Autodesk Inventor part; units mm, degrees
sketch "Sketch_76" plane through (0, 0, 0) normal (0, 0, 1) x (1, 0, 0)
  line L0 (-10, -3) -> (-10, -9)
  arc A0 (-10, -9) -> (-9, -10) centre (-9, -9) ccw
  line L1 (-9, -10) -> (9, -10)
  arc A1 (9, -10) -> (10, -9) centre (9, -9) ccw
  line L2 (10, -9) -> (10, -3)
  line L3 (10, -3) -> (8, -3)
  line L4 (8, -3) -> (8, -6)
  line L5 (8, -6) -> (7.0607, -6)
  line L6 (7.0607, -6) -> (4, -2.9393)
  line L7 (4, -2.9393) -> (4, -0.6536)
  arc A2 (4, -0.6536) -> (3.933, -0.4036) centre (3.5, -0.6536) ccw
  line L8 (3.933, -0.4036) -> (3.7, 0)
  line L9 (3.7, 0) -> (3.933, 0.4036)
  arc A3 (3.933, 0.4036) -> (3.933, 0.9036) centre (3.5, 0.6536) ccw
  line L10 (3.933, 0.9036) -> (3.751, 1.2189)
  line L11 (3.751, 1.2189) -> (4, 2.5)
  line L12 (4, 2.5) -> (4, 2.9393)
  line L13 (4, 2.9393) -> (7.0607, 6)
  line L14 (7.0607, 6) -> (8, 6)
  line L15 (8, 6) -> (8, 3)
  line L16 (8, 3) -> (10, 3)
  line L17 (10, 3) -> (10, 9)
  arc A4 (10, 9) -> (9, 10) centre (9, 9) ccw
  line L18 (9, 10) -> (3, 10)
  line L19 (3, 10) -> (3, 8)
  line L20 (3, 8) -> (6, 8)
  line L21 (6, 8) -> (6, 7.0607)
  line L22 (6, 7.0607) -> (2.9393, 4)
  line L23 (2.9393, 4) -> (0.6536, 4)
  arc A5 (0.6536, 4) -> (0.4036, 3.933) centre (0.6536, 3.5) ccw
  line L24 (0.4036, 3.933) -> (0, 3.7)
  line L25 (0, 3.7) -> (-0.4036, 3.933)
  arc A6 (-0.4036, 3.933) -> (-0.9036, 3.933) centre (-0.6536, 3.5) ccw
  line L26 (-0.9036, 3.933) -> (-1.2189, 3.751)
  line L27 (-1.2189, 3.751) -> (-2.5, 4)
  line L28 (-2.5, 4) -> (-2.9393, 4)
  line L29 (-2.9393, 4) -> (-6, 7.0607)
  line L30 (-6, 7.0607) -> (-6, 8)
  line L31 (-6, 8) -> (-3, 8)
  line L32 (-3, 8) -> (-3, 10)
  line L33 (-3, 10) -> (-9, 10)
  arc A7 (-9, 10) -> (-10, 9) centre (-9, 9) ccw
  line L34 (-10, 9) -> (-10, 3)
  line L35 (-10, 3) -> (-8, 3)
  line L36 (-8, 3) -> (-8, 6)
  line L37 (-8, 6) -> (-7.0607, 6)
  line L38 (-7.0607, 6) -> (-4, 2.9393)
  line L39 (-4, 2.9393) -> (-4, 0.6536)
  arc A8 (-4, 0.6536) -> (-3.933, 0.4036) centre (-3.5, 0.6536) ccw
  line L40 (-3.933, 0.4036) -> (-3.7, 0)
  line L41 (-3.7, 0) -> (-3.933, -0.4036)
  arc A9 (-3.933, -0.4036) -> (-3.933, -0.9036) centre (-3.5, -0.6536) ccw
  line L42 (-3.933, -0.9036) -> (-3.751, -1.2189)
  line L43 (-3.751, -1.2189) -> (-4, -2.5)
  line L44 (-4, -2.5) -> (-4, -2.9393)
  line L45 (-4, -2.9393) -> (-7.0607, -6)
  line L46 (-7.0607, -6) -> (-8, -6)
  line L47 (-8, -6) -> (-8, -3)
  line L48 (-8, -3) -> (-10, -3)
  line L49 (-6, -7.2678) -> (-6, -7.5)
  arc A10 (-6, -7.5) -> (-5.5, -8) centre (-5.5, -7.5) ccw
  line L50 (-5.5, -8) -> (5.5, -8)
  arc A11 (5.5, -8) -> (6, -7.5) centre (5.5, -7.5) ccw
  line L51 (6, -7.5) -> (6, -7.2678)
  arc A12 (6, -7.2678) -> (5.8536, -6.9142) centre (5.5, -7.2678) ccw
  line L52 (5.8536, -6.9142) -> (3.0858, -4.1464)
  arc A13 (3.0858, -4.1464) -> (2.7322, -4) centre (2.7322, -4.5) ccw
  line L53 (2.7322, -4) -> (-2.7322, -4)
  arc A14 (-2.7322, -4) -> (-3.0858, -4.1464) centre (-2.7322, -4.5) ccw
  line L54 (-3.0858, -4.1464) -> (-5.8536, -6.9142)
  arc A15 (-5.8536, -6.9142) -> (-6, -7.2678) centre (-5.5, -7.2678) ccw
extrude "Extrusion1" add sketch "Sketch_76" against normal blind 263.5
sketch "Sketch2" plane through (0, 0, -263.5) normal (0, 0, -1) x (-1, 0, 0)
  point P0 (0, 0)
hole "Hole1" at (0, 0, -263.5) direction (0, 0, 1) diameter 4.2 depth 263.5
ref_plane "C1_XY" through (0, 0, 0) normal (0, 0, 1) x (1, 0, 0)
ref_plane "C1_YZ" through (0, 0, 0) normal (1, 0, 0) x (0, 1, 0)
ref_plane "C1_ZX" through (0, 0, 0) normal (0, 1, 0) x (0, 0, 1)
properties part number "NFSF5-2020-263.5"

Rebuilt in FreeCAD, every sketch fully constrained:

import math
import FreeCAD as App
import Part
import Sketcher
Q = App.Units.Quantity

doc = App.newDocument("Part")
body = doc.addObject("PartDesign::Body", "Body")

# Sketch on XY plane
sketch1 = doc.addObject("Sketcher::SketchObject", "Sketch")
body.addObject(sketch1)
sketch1.AttachmentSupport = (doc.XY_Plane, [""])
sketch1.MapMode = "FlatFace"
sketch1.addGeometry([
    Part.LineSegment(App.Vector(-8, -3, 0), App.Vector(-10, -3, 0)),  # 0
    Part.LineSegment(App.Vector(-10, -3, 0), App.Vector(-10, -9, 0)),  # 1
    Part.ArcOfCircle(Part.Circle(App.Vector(-9, -9, 0), App.Vector(0, 0, 1), 1), math.radians(180), math.radians(270)),  # 2
    Part.LineSegment(App.Vector(-9, -10, 0), App.Vector(9, -10, 0)),  # 3
    Part.ArcOfCircle(Part.Circle(App.Vector(9, -9, 0), App.Vector(0, 0, 1), 1), math.radians(-90), math.radians(0)),  # 4
    Part.LineSegment(App.Vector(10, -9, 0), App.Vector(10, -3, 0)),  # 5
    Part.LineSegment(App.Vector(10, -3, 0), App.Vector(8, -3, 0)),  # 6
    Part.LineSegment(App.Vector(8, -3, 0), App.Vector(8, -6, 0)),  # 7
    Part.LineSegment(App.Vector(8, -6, 0), App.Vector(7.06, -6, 0)),  # 8
    Part.LineSegment(App.Vector(7.06, -6, 0), App.Vector(4, -2.94, 0)),  # 9
    Part.LineSegment(App.Vector(4, -2.94, 0), App.Vector(4, -0.65, 0)),  # 10
    Part.ArcOfCircle(Part.Circle(App.Vector(3.5, -0.65, 0), App.Vector(0, 0, 1), 0.5), math.radians(0), math.radians(30)),  # 11
    Part.LineSegment(App.Vector(3.93, -0.4, 0), App.Vector(3.7, 0, 0)),  # 12
    Part.LineSegment(App.Vector(3.7, 0, 0), App.Vector(3.93, 0.4, 0)),  # 13
    Part.ArcOfCircle(Part.Circle(App.Vector(3.5, 0.65, 0), App.Vector(0, 0, 1), 0.5), math.radians(-30), math.radians(30)),  # 14
    Part.LineSegment(App.Vector(3.93, 0.9, 0), App.Vector(3.75, 1.22, 0)),  # 15
    Part.LineSegment(App.Vector(3.75, 1.22, 0), App.Vector(4, 2.5, 0)),  # 16
    Part.LineSegment(App.Vector(4, 2.5, 0), App.Vector(4, 2.94, 0)),  # 17
    Part.LineSegment(App.Vector(4, 2.94, 0), App.Vector(7.06, 6, 0)),  # 18
    Part.LineSegment(App.Vector(7.06, 6, 0), App.Vector(8, 6, 0)),  # 19
    Part.LineSegment(App.Vector(8, 6, 0), App.Vector(8, 3, 0)),  # 20
    Part.LineSegment(App.Vector(8, 3, 0), App.Vector(10, 3, 0)),  # 21
    Part.LineSegment(App.Vector(10, 3, 0), App.Vector(10, 9, 0)),  # 22
    Part.ArcOfCircle(Part.Circle(App.Vector(9, 9, 0), App.Vector(0, 0, 1), 1), math.radians(0), math.radians(90)),  # 23
    Part.LineSegment(App.Vector(9, 10, 0), App.Vector(3, 10, 0)),  # 24
    Part.LineSegment(App.Vector(3, 10, 0), App.Vector(3, 8, 0)),  # 25
    Part.LineSegment(App.Vector(3, 8, 0), App.Vector(6, 8, 0)),  # 26
    Part.LineSegment(App.Vector(6, 8, 0), App.Vector(6, 7.06, 0)),  # 27
    Part.LineSegment(App.Vector(6, 7.06, 0), App.Vector(2.94, 4, 0)),  # 28
    Part.LineSegment(App.Vector(2.94, 4, 0), App.Vector(0.65, 4, 0)),  # 29
    Part.ArcOfCircle(Part.Circle(App.Vector(0.65, 3.5, 0), App.Vector(0, 0, 1), 0.5), math.radians(90), math.radians(120)),  # 30
    Part.LineSegment(App.Vector(0.4, 3.93, 0), App.Vector(0, 3.7, 0)),  # 31
    Part.LineSegment(App.Vector(0, 3.7, 0), App.Vector(-0.4, 3.93, 0)),  # 32
    Part.ArcOfCircle(Part.Circle(App.Vector(-0.65, 3.5, 0), App.Vector(0, 0, 1), 0.5), math.radians(60), math.radians(120)),  # 33
    Part.LineSegment(App.Vector(-0.9, 3.93, 0), App.Vector(-1.22, 3.75, 0)),  # 34
    Part.LineSegment(App.Vector(-1.22, 3.75, 0), App.Vector(-2.5, 4, 0)),  # 35
    Part.LineSegment(App.Vector(-2.5, 4, 0), App.Vector(-2.94, 4, 0)),  # 36
    Part.LineSegment(App.Vector(-2.94, 4, 0), App.Vector(-6, 7.06, 0)),  # 37
    Part.LineSegment(App.Vector(-6, 7.06, 0), App.Vector(-6, 8, 0)),  # 38
    Part.LineSegment(App.Vector(-6, 8, 0), App.Vector(-3, 8, 0)),  # 39
    Part.LineSegment(App.Vector(-3, 8, 0), App.Vector(-3, 10, 0)),  # 40
    Part.LineSegment(App.Vector(-3, 10, 0), App.Vector(-9, 10, 0)),  # 41
    Part.ArcOfCircle(Part.Circle(App.Vector(-9, 9, 0), App.Vector(0, 0, 1), 1), math.radians(90), math.radians(180)),  # 42
    Part.LineSegment(App.Vector(-10, 9, 0), App.Vector(-10, 3, 0)),  # 43
    Part.LineSegment(App.Vector(-10, 3, 0), App.Vector(-8, 3, 0)),  # 44
    Part.LineSegment(App.Vector(-8, 3, 0), App.Vector(-8, 6, 0)),  # 45
    Part.LineSegment(App.Vector(-8, 6, 0), App.Vector(-7.06, 6, 0)),  # 46
    Part.LineSegment(App.Vector(-7.06, 6, 0), App.Vector(-4, 2.94, 0)),  # 47
    Part.LineSegment(App.Vector(-4, 2.94, 0), App.Vector(-4, 0.65, 0)),  # 48
    Part.ArcOfCircle(Part.Circle(App.Vector(-3.5, 0.65, 0), App.Vector(0, 0, 1), 0.5), math.radians(180), math.radians(210)),  # 49
    Part.LineSegment(App.Vector(-3.93, 0.4, 0), App.Vector(-3.7, 0, 0)),  # 50
    Part.LineSegment(App.Vector(-3.7, 0, 0), App.Vector(-3.93, -0.4, 0)),  # 51
    Part.ArcOfCircle(Part.Circle(App.Vector(-3.5, -0.65, 0), App.Vector(0, 0, 1), 0.5), math.radians(150), math.radians(210)),  # 52
    Part.LineSegment(App.Vector(-3.93, -0.9, 0), App.Vector(-3.75, -1.22, 0)),  # 53
    Part.LineSegment(App.Vector(-3.75, -1.22, 0), App.Vector(-4, -2.5, 0)),  # 54
    Part.LineSegment(App.Vector(-4, -2.5, 0), App.Vector(-4, -2.94, 0)),  # 55
    Part.LineSegment(App.Vector(-4, -2.94, 0), App.Vector(-7.06, -6, 0)),  # 56
    Part.LineSegment(App.Vector(-7.06, -6, 0), App.Vector(-8, -6, 0)),  # 57
    Part.LineSegment(App.Vector(-8, -6, 0), App.Vector(-8, -3, 0)),  # 58
    Part.LineSegment(App.Vector(-6, -7.5, 0), App.Vector(-6, -7.27, 0)),  # 59
    Part.ArcOfCircle(Part.Circle(App.Vector(-5.5, -7.27, 0), App.Vector(0, 0, 1), 0.5), math.radians(135), math.radians(180)),  # 60
    Part.LineSegment(App.Vector(-5.85, -6.91, 0), App.Vector(-3.09, -4.15, 0)),  # 61
    Part.ArcOfCircle(Part.Circle(App.Vector(-2.73, -4.5, 0), App.Vector(0, 0, 1), 0.5), math.radians(90), math.radians(135)),  # 62
    Part.LineSegment(App.Vector(-2.73, -4, 0), App.Vector(2.73, -4, 0)),  # 63
    Part.ArcOfCircle(Part.Circle(App.Vector(2.73, -4.5, 0), App.Vector(0, 0, 1), 0.5), math.radians(45), math.radians(90)),  # 64
    Part.LineSegment(App.Vector(3.09, -4.15, 0), App.Vector(5.85, -6.91, 0)),  # 65
    Part.ArcOfCircle(Part.Circle(App.Vector(5.5, -7.27, 0), App.Vector(0, 0, 1), 0.5), math.radians(0), math.radians(45)),  # 66
    Part.LineSegment(App.Vector(6, -7.27, 0), App.Vector(6, -7.5, 0)),  # 67
    Part.ArcOfCircle(Part.Circle(App.Vector(5.5, -7.5, 0), App.Vector(0, 0, 1), 0.5), math.radians(-90), math.radians(0)),  # 68
    Part.LineSegment(App.Vector(5.5, -8, 0), App.Vector(-5.5, -8, 0)),  # 69
    Part.ArcOfCircle(Part.Circle(App.Vector(-5.5, -7.5, 0), App.Vector(0, 0, 1), 0.5), math.radians(180), math.radians(270)),  # 70
], False)
sketch1.addConstraint([
    Sketcher.Constraint("Coincident", 0, 2, 1, 1),
    Sketcher.Constraint("Tangent", 1, 2, 2, 1),
    Sketcher.Constraint("Tangent", 2, 2, 3, 1),
    Sketcher.Constraint("Tangent", 3, 2, 4, 1),
    Sketcher.Constraint("Tangent", 4, 2, 5, 1),
    Sketcher.Constraint("Coincident", 5, 2, 6, 1),
    Sketcher.Constraint("Coincident", 6, 2, 7, 1),
    Sketcher.Constraint("Coincident", 7, 2, 8, 1),
    Sketcher.Constraint("Coincident", 8, 2, 9, 1),
    Sketcher.Constraint("Coincident", 9, 2, 10, 1),
    Sketcher.Constraint("Tangent", 10, 2, 11, 1),
    Sketcher.Constraint("Tangent", 11, 2, 12, 1),
    Sketcher.Constraint("Coincident", 12, 2, 13, 1),
    Sketcher.Constraint("Tangent", 13, 2, 14, 1),
    Sketcher.Constraint("Tangent", 14, 2, 15, 1),
    Sketcher.Constraint("Coincident", 15, 2, 16, 1),
    Sketcher.Constraint("Coincident", 16, 2, 17, 1),
    Sketcher.Constraint("Coincident", 17, 2, 18, 1),
    Sketcher.Constraint("Coincident", 18, 2, 19, 1),
    Sketcher.Constraint("Coincident", 19, 2, 20, 1),
    Sketcher.Constraint("Coincident", 20, 2, 21, 1),
    Sketcher.Constraint("Coincident", 21, 2, 22, 1),
    Sketcher.Constraint("Tangent", 22, 2, 23, 1),
    Sketcher.Constraint("Tangent", 23, 2, 24, 1),
    Sketcher.Constraint("Coincident", 24, 2, 25, 1),
    Sketcher.Constraint("Coincident", 25, 2, 26, 1),
    Sketcher.Constraint("Coincident", 26, 2, 27, 1),
    Sketcher.Constraint("Coincident", 27, 2, 28, 1),
    Sketcher.Constraint("Coincident", 28, 2, 29, 1),
    Sketcher.Constraint("Tangent", 29, 2, 30, 1),
    Sketcher.Constraint("Tangent", 30, 2, 31, 1),
    Sketcher.Constraint("Coincident", 31, 2, 32, 1),
    Sketcher.Constraint("Tangent", 32, 2, 33, 1),
    Sketcher.Constraint("Tangent", 33, 2, 34, 1),
    Sketcher.Constraint("Coincident", 34, 2, 35, 1),
    Sketcher.Constraint("Coincident", 35, 2, 36, 1),
    Sketcher.Constraint("Coincident", 36, 2, 37, 1),
    Sketcher.Constraint("Coincident", 37, 2, 38, 1),
    Sketcher.Constraint("Coincident", 38, 2, 39, 1),
    Sketcher.Constraint("Coincident", 39, 2, 40, 1),
    Sketcher.Constraint("Coincident", 40, 2, 41, 1),
    Sketcher.Constraint("Tangent", 41, 2, 42, 1),
    Sketcher.Constraint("Tangent", 42, 2, 43, 1),
    Sketcher.Constraint("Coincident", 43, 2, 44, 1),
    Sketcher.Constraint("Coincident", 44, 2, 45, 1),
    Sketcher.Constraint("Coincident", 45, 2, 46, 1),
    Sketcher.Constraint("Coincident", 46, 2, 47, 1),
    Sketcher.Constraint("Coincident", 47, 2, 48, 1),
    Sketcher.Constraint("Tangent", 48, 2, 49, 1),
    Sketcher.Constraint("Tangent", 49, 2, 50, 1),
    Sketcher.Constraint("Coincident", 50, 2, 51, 1),
    Sketcher.Constraint("Tangent", 51, 2, 52, 1),
    Sketcher.Constraint("Tangent", 52, 2, 53, 1),
    Sketcher.Constraint("Coincident", 53, 2, 54, 1),
    Sketcher.Constraint("Coincident", 54, 2, 55, 1),
    Sketcher.Constraint("Coincident", 55, 2, 56, 1),
    Sketcher.Constraint("Coincident", 56, 2, 57, 1),
    Sketcher.Constraint("Coincident", 57, 2, 58, 1),
    Sketcher.Constraint("Coincident", 58, 2, 0, 1),
    Sketcher.Constraint("Tangent", 59, 2, 60, 2),
    Sketcher.Constraint("Tangent", 60, 1, 61, 1),
    Sketcher.Constraint("Tangent", 61, 2, 62, 2),
    Sketcher.Constraint("Tangent", 62, 1, 63, 1),
    Sketcher.Constraint("Tangent", 63, 2, 64, 2),
    Sketcher.Constraint("Tangent", 64, 1, 65, 1),
    Sketcher.Constraint("Tangent", 65, 2, 66, 2),
    Sketcher.Constraint("Tangent", 66, 1, 67, 1),
    Sketcher.Constraint("Tangent", 67, 2, 68, 2),
    Sketcher.Constraint("Tangent", 68, 1, 69, 1),
    Sketcher.Constraint("Tangent", 69, 2, 70, 2),
    Sketcher.Constraint("Tangent", 70, 1, 59, 1),
    Sketcher.Constraint("Horizontal", 0),
    Sketcher.Constraint("Vertical", 1),
    Sketcher.Constraint("Horizontal", 3),
    Sketcher.Constraint("Vertical", 5),
    Sketcher.Constraint("Horizontal", 6),
    Sketcher.Constraint("Vertical", 7),
    Sketcher.Constraint("Horizontal", 8),
    Sketcher.Constraint("Vertical", 10),
    Sketcher.Constraint("Vertical", 17),
    Sketcher.Constraint("Horizontal", 19),
    Sketcher.Constraint("Vertical", 20),
    Sketcher.Constraint("Horizontal", 21),
    Sketcher.Constraint("Vertical", 22),
    Sketcher.Constraint("Horizontal", 24),
    Sketcher.Constraint("Vertical", 25),
    Sketcher.Constraint("Horizontal", 26),
    Sketcher.Constraint("Vertical", 27),
    Sketcher.Constraint("Horizontal", 29),
    Sketcher.Constraint("Horizontal", 36),
    Sketcher.Constraint("Vertical", 38),
    Sketcher.Constraint("Horizontal", 39),
    Sketcher.Constraint("Vertical", 40),
    Sketcher.Constraint("Horizontal", 41),
    Sketcher.Constraint("Vertical", 43),
    Sketcher.Constraint("Horizontal", 44),
    Sketcher.Constraint("Vertical", 45),
    Sketcher.Constraint("Horizontal", 46),
    Sketcher.Constraint("Vertical", 48),
    Sketcher.Constraint("Vertical", 55),
    Sketcher.Constraint("Horizontal", 57),
    Sketcher.Constraint("Vertical", 58),
    Sketcher.Constraint("Vertical", 59),
    Sketcher.Constraint("Horizontal", 63),
    Sketcher.Constraint("Vertical", 67),
    Sketcher.Constraint("Horizontal", 69),
    Sketcher.Constraint("Equal", 2, 4),
    Sketcher.Constraint("Equal", 11, 14),
    Sketcher.Constraint("Equal", 4, 23),
    Sketcher.Constraint("Equal", 14, 30),
    Sketcher.Constraint("Equal", 30, 33),
    Sketcher.Constraint("Equal", 23, 42),
    Sketcher.Constraint("Equal", 33, 49),
    Sketcher.Constraint("Equal", 49, 52),
    Sketcher.Constraint("Equal", 52, 60),
    Sketcher.Constraint("Equal", 60, 62),
    Sketcher.Constraint("Equal", 62, 64),
    Sketcher.Constraint("Equal", 64, 66),
    Sketcher.Constraint("Equal", 66, 68),
    Sketcher.Constraint("Equal", 68, 70),
    Sketcher.Constraint("Symmetric", 2, 3, 23, 3, -1, 1),
    Sketcher.Constraint("Symmetric", 4, 3, 42, 3, -1, 1),
    Sketcher.Constraint("Symmetric", 11, 3, 49, 3, -1, 1),
    Sketcher.Constraint("Symmetric", 14, 3, 52, 3, -1, 1),
    Sketcher.Constraint("Symmetric", 6, 2, 44, 2, -1, 1),
    Sketcher.Constraint("Symmetric", 8, 2, 46, 2, -1, 1),
    Sketcher.Constraint("Symmetric", 12, 2, 50, 2, -1, 1),
    Sketcher.Constraint("Symmetric", 15, 2, 53, 2, -1, 1),
    Sketcher.Constraint("Symmetric", 16, 2, 54, 2, -1, 1),
    Sketcher.Constraint("Symmetric", 18, 2, 56, 2, -1, 1),
    Sketcher.Constraint("Symmetric", 20, 2, 58, 2, -1, 1),
    Sketcher.Constraint("Symmetric", 30, 3, 33, 3, -2),
    Sketcher.Constraint("Symmetric", 14, 3, 49, 3, -2),
    Sketcher.Constraint("Symmetric", 60, 3, 66, 3, -2),
    Sketcher.Constraint("Symmetric", 0, 2, 5, 2, -2),
    Sketcher.Constraint("Symmetric", 28, 2, 36, 2, -2),
    Sketcher.Constraint("Symmetric", 27, 2, 37, 2, -2),
    Sketcher.Constraint("Symmetric", 25, 2, 39, 2, -2),
    Sketcher.Constraint("Symmetric", 19, 2, 45, 2, -2),
    Sketcher.Constraint("Symmetric", 17, 2, 47, 2, -2),
    Sketcher.Constraint("PointOnObject", 12, 2, -1),
    Sketcher.Constraint("PointOnObject", 31, 2, -2),
    Sketcher.Constraint("Parallel", 12, 15),
    Sketcher.Constraint("Perpendicular", 9, 18),
    Sketcher.Constraint("Parallel", 18, 28),
    Sketcher.Constraint("Perpendicular", 15, 31),
    Sketcher.Constraint("Parallel", 31, 34),
    Sketcher.Constraint("Perpendicular", 16, 35),
    Sketcher.Constraint("Perpendicular", 28, 37),
    Sketcher.Constraint("Parallel", 37, 47),
    Sketcher.Constraint("Perpendicular", 47, 56),
    Sketcher.Constraint("Parallel", 56, 61),
    Sketcher.Constraint("Perpendicular", 61, 65),
    Sketcher.Constraint("Vertical", 38, 2, 59, 2),
    Sketcher.Constraint("Equal", 41, 1),
    Sketcher.Constraint("Equal", 39, 7),
    Sketcher.Constraint("Equal", 29, 10),
    Sketcher.Constraint("Equal", 36, 17),
    Sketcher.Constraint("Equal", 44, 25),
    Sketcher.Constraint("Equal", 57, 27),
    Sketcher.Constraint("Equal", 18, 28),
    Sketcher.Constraint("Equal", 13, 31),
    Sketcher.Constraint("Radius", 2, 1.0),
    Sketcher.Constraint("Radius", 11, 0.5),
    Sketcher.Constraint("DistanceX", 0, 2, 0, 1, 2.0),
    Sketcher.Constraint("DistanceX", 3, 1, 3, 2, 18.0),
    Sketcher.Constraint("DistanceX", 24, 2, 24, 1, 6.0),
    Sketcher.Constraint("DistanceX", 26, 1, 26, 2, 3.0),
    Sketcher.Constraint("Angle", 16, Q("79.001 deg")),
    Sketcher.Constraint("DistanceX", -1, 1, 9, 2, 4.0),
    Sketcher.Constraint("DistanceY", 62, 1, -1, 1, 4.0),
    Sketcher.Constraint("DistanceY", 68, 1, -1, 1, 8.0),
    Sketcher.Constraint("DistanceX", -1, 1, 12, 2, 3.7),
    Sketcher.Constraint("DistanceY", -1, 1, 16, 2, 2.5),
    Sketcher.Constraint("Distance", 12, 0.466),
    Sketcher.Constraint("DistanceX", 8, 2, 8, 1, 0.9393),
    Sketcher.Constraint("DistanceX", 63, 1, 63, 2, 5.4644),
])
pad1 = doc.addObject("PartDesign::Pad", "Pad")
body.addObject(pad1)
pad1.Profile = sketch1
pad1.Length = 263.5
pad1.Reversed = True

# Sketch on XY plane
sketch2 = doc.addObject("Sketcher::SketchObject", "Sketch001")
body.addObject(sketch2)
sketch2.AttachmentSupport = (doc.XY_Plane, [""])
sketch2.MapMode = "FlatFace"
sketch2.AttachmentOffset = App.Placement(App.Vector(0, 0, -263.5), App.Rotation())
sketch2.addGeometry(Part.Circle(App.Vector(0, 0, 0), App.Vector(0, 0, 1), 2.1), False)
sketch2.addConstraint([
    Sketcher.Constraint("Coincident", 0, 3, -1, 1),
    Sketcher.Constraint("Diameter", 0, 4.2),
])
doc.recompute()
hole = doc.addObject("PartDesign::Hole", "Hole")
body.addObject(hole)
hole.Profile = sketch2
hole.ThreadType = "None"
hole.Diameter = 4.2
hole.DepthType = "Dimension"
hole.Depth = 263.5
hole.DrillPoint = "Flat"
hole.Reversed = True

doc.recompute()
